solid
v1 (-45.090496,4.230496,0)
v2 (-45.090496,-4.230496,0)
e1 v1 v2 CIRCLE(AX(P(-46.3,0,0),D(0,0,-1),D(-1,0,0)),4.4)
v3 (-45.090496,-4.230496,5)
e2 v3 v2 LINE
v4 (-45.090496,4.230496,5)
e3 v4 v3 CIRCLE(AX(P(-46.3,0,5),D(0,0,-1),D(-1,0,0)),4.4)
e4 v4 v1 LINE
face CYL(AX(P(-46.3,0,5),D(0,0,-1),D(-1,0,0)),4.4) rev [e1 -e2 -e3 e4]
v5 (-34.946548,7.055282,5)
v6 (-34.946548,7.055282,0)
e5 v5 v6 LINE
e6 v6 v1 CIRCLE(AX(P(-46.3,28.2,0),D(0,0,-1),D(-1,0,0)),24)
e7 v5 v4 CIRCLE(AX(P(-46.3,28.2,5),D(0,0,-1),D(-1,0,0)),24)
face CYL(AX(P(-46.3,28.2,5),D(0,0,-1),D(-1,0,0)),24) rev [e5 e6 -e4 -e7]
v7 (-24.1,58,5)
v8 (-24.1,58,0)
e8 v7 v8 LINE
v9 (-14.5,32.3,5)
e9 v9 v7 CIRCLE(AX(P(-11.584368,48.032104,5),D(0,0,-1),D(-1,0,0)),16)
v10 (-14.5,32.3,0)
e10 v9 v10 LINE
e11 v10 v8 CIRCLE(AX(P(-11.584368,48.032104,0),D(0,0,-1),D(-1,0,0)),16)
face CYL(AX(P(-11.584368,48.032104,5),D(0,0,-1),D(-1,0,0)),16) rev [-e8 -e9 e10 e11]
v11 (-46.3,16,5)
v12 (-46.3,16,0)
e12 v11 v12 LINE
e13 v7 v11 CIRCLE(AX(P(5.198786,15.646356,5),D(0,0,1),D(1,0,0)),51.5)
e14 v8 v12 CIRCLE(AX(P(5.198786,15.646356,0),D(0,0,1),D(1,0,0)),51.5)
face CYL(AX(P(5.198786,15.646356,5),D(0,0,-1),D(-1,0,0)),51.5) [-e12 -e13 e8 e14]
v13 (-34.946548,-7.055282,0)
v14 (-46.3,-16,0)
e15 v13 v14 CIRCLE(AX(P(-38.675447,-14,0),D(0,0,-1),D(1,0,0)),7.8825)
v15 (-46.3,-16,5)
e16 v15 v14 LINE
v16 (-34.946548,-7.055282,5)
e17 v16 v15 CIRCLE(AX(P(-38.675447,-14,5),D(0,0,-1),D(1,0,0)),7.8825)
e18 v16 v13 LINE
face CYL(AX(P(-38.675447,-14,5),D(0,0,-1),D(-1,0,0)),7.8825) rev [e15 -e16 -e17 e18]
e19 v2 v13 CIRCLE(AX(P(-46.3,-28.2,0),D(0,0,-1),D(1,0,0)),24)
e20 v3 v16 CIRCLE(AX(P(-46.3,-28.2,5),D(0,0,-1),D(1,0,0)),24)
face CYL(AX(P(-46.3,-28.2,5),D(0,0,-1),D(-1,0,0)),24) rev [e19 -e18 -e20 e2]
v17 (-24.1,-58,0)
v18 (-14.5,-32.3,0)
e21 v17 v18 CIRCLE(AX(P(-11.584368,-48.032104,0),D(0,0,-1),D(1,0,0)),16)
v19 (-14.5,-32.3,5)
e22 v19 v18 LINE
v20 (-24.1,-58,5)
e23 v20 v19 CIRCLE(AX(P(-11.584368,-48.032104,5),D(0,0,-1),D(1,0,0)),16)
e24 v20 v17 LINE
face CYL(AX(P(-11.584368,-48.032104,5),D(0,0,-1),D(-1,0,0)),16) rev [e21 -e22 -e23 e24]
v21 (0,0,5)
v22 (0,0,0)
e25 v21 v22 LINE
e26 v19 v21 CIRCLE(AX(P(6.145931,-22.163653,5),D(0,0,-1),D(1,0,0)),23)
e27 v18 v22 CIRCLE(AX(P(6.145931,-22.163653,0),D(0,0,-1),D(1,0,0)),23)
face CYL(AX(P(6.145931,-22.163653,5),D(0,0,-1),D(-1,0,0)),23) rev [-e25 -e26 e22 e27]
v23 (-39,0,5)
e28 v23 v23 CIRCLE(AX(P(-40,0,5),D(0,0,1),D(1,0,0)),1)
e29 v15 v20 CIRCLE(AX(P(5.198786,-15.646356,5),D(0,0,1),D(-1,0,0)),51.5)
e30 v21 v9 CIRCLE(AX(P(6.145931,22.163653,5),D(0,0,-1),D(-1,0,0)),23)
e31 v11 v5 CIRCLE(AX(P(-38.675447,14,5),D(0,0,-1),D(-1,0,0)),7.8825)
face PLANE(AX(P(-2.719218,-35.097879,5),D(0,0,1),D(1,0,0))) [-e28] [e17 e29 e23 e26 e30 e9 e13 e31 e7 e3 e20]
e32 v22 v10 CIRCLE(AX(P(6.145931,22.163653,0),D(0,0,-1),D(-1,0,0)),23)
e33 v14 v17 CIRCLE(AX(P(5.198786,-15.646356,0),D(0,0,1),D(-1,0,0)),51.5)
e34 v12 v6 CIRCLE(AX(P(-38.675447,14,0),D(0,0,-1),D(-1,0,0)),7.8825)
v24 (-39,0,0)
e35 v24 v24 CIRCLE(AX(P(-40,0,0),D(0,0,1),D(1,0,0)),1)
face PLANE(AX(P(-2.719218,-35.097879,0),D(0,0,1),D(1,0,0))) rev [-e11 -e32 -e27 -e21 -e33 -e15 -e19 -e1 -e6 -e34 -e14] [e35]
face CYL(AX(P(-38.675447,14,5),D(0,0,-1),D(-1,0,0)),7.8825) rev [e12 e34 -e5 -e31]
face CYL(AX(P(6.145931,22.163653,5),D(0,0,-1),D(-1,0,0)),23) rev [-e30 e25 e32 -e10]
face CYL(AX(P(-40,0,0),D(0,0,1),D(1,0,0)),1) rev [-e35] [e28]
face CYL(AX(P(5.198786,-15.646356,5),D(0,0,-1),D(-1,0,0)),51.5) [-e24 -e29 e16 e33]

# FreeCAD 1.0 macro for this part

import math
import FreeCAD as App
import Part
import Sketcher

doc = App.newDocument("Part")
params = doc.addObject("Spreadsheet::Sheet", "Params")
for row, (alias, value) in enumerate([
    ("sketch1_radius", "23 mm"),
    ("sketch1_radius2", "16 mm"),
    ("sketch1_radius3", "24 mm"),
    ("sketch1_radius4", "51.5 mm"),
    ("sketch1_radius5", "4.4 mm"),
    ("pad1_length", "5 mm"),
    ("sketch2_diameter", "2 mm"),
    ("pocket1_length", "5 mm"),
], start=1):
    params.set(f"A{row}", alias)
    params.set(f"B{row}", "=" + value)
    params.setAlias(f"B{row}", alias)

body = doc.addObject("PartDesign::Body", "Body")

# Sketch on XY plane
sketch1 = body.newObject("Sketcher::SketchObject", "Sketch")
sketch1.AttachmentSupport = (doc.getObject("XY_Plane"), [""])
sketch1.MapMode = "FlatFace"
sketch1.addGeometry(Part.ArcOfCircle(Part.Circle(App.Vector(6.1, 22.2, 0), App.Vector(0, 0, 1), 23), math.radians(154), math.radians(255)), False)
sketch1.addGeometry(Part.ArcOfCircle(Part.Circle(App.Vector(-11.6, 48, 0), App.Vector(0, 0, 1), 16), math.radians(141), math.radians(260)), False)
sketch1.addGeometry(Part.ArcOfCircle(Part.Circle(App.Vector(5.2, 15.6, 0), App.Vector(0, 0, 1), 51.5), math.radians(125), math.radians(180)), False)
sketch1.addGeometry(Part.ArcOfCircle(Part.Circle(App.Vector(-38.7, 14, 0), App.Vector(0, 0, 1), 7.9), math.radians(-62), math.radians(165)), False)
sketch1.addGeometry(Part.ArcOfCircle(Part.Circle(App.Vector(-46.3, 28.2, 0), App.Vector(0, 0, 1), 24), math.radians(-87), math.radians(-62)), False)
sketch1.addGeometry(Part.ArcOfCircle(Part.Circle(App.Vector(-46.3, 0, 0), App.Vector(0, 0, 1), 4.4), math.radians(-74), math.radians(74)), False)
sketch1.addGeometry(Part.ArcOfCircle(Part.Circle(App.Vector(-46.3, -28.2, 0), App.Vector(0, 0, 1), 24), math.radians(62), math.radians(87)), False)
sketch1.addGeometry(Part.ArcOfCircle(Part.Circle(App.Vector(-38.7, -14, 0), App.Vector(0, 0, 1), 7.9), math.radians(-165), math.radians(62)), False)
sketch1.addGeometry(Part.ArcOfCircle(Part.Circle(App.Vector(5.2, -15.6, 0), App.Vector(0, 0, 1), 51.5), math.radians(-180), math.radians(-125)), False)
sketch1.addGeometry(Part.ArcOfCircle(Part.Circle(App.Vector(-11.6, -48, 0), App.Vector(0, 0, 1), 16), math.radians(100), math.radians(219)), False)
sketch1.addGeometry(Part.ArcOfCircle(Part.Circle(App.Vector(6.1, -22.2, 0), App.Vector(0, 0, 1), 23), math.radians(105), math.radians(206)), False)
sketch1.addConstraint(Sketcher.Constraint("Coincident", 0, 1, 1, 2))
sketch1.addConstraint(Sketcher.Constraint("Coincident", 1, 1, 2, 1))
sketch1.addConstraint(Sketcher.Constraint("Coincident", 2, 2, 3, 2))
sketch1.addConstraint(Sketcher.Constraint("Tangent", 3, 1, 4, 2))
sketch1.addConstraint(Sketcher.Constraint("Coincident", 4, 1, 5, 2))
sketch1.addConstraint(Sketcher.Constraint("Coincident", 5, 1, 6, 2))
sketch1.addConstraint(Sketcher.Constraint("Tangent", 6, 1, 7, 2))
sketch1.addConstraint(Sketcher.Constraint("Coincident", 7, 1, 8, 1))
sketch1.addConstraint(Sketcher.Constraint("Coincident", 8, 2, 9, 2))
sketch1.addConstraint(Sketcher.Constraint("Coincident", 9, 1, 10, 2))
sketch1.addConstraint(Sketcher.Constraint("Coincident", 10, 1, 0, 2))
sketch1.addConstraint(Sketcher.Constraint("Coincident", 10, 1, -1, 1))
sketch1.addConstraint(Sketcher.Constraint("Equal", 4, 6))
sketch1.addConstraint(Sketcher.Constraint("Equal", 3, 7))
sketch1.addConstraint(Sketcher.Constraint("Equal", 2, 8))
sketch1.addConstraint(Sketcher.Constraint("Equal", 1, 9))
sketch1.addConstraint(Sketcher.Constraint("Equal", 0, 10))
sketch1.addConstraint(Sketcher.Constraint("Symmetric", 4, 3, 6, 3, -1))
sketch1.addConstraint(Sketcher.Constraint("Symmetric", 2, 3, 8, 3, -1))
sketch1.addConstraint(Sketcher.Constraint("Symmetric", 1, 3, 9, 3, -1))
sketch1.addConstraint(Sketcher.Constraint("PointOnObject", 5, 3, -1))
sketch1.addConstraint(Sketcher.Constraint("Vertical", 4, 3, 5, 3))
sketch1.addConstraint(Sketcher.Constraint("Vertical", 3, 3, 7, 3))
sketch1.addConstraint(Sketcher.Constraint("Vertical", 0, 3, 10, 3))
sketch1.addConstraint(Sketcher.Constraint("Vertical", 6, 3, 2, 2))
sketch1.addConstraint(Sketcher.Constraint("Radius", 0, 23.0))
sketch1.addConstraint(Sketcher.Constraint("Radius", 1, 16.0))
sketch1.addConstraint(Sketcher.Constraint("Radius", 4, 24.0))
sketch1.addConstraint(Sketcher.Constraint("Radius", 2, 51.5))
sketch1.addConstraint(Sketcher.Constraint("Radius", 5, 4.4))
sketch1.addConstraint(Sketcher.Constraint("DistanceY", -1, 1, 3, 3, 14.0))
sketch1.addConstraint(Sketcher.Constraint("DistanceY", -1, 1, 1, 1, 58.0))
sketch1.addConstraint(Sketcher.Constraint("DistanceY", -1, 1, 2, 2, 16.0))
sketch1.addConstraint(Sketcher.Constraint("DistanceX", 4, 3, -1, 1, 46.3))
sketch1.addConstraint(Sketcher.Constraint("DistanceY", -1, 1, 4, 3, 28.2))
sketch1.addConstraint(Sketcher.Constraint("DistanceX", 0, 1, -1, 1, 14.5))
sketch1.addConstraint(Sketcher.Constraint("DistanceY", -1, 1, 0, 1, 32.3))
sketch1.addConstraint(Sketcher.Constraint("DistanceX", 1, 1, -1, 1, 24.1))
sketch1.setExpression("Constraints[25]", "Params.sketch1_radius")
sketch1.setExpression("Constraints[26]", "Params.sketch1_radius2")
sketch1.setExpression("Constraints[27]", "Params.sketch1_radius3")
sketch1.setExpression("Constraints[28]", "Params.sketch1_radius4")
sketch1.setExpression("Constraints[29]", "Params.sketch1_radius5")
pad1 = body.newObject("PartDesign::Pad", "Pad")
pad1.Profile = sketch1
pad1.setExpression("Length", "Params.pad1_length")

# Sketch on XY plane
sketch2 = body.newObject("Sketcher::SketchObject", "Sketch001")
sketch2.AttachmentSupport = (doc.getObject("XY_Plane"), [""])
sketch2.MapMode = "FlatFace"
sketch2.AttachmentOffset = App.Placement(App.Vector(0, 0, 5), App.Rotation())
sketch2.addGeometry(Part.Circle(App.Vector(-40, 0, 0), App.Vector(0, 0, 1), 1), False)
sketch2.addConstraint(Sketcher.Constraint("PointOnObject", 0, 3, -1))
sketch2.addConstraint(Sketcher.Constraint("Diameter", 0, 2.0))
sketch2.addConstraint(Sketcher.Constraint("DistanceX", 0, 3, -1, 1, 40.0))
sketch2.setExpression("Constraints[1]", "Params.sketch2_diameter")
pocket1 = body.newObject("PartDesign::Pocket", "Pocket")
pocket1.Profile = sketch2
pocket1.setExpression("Length", "Params.pocket1_length")

doc.recompute()
